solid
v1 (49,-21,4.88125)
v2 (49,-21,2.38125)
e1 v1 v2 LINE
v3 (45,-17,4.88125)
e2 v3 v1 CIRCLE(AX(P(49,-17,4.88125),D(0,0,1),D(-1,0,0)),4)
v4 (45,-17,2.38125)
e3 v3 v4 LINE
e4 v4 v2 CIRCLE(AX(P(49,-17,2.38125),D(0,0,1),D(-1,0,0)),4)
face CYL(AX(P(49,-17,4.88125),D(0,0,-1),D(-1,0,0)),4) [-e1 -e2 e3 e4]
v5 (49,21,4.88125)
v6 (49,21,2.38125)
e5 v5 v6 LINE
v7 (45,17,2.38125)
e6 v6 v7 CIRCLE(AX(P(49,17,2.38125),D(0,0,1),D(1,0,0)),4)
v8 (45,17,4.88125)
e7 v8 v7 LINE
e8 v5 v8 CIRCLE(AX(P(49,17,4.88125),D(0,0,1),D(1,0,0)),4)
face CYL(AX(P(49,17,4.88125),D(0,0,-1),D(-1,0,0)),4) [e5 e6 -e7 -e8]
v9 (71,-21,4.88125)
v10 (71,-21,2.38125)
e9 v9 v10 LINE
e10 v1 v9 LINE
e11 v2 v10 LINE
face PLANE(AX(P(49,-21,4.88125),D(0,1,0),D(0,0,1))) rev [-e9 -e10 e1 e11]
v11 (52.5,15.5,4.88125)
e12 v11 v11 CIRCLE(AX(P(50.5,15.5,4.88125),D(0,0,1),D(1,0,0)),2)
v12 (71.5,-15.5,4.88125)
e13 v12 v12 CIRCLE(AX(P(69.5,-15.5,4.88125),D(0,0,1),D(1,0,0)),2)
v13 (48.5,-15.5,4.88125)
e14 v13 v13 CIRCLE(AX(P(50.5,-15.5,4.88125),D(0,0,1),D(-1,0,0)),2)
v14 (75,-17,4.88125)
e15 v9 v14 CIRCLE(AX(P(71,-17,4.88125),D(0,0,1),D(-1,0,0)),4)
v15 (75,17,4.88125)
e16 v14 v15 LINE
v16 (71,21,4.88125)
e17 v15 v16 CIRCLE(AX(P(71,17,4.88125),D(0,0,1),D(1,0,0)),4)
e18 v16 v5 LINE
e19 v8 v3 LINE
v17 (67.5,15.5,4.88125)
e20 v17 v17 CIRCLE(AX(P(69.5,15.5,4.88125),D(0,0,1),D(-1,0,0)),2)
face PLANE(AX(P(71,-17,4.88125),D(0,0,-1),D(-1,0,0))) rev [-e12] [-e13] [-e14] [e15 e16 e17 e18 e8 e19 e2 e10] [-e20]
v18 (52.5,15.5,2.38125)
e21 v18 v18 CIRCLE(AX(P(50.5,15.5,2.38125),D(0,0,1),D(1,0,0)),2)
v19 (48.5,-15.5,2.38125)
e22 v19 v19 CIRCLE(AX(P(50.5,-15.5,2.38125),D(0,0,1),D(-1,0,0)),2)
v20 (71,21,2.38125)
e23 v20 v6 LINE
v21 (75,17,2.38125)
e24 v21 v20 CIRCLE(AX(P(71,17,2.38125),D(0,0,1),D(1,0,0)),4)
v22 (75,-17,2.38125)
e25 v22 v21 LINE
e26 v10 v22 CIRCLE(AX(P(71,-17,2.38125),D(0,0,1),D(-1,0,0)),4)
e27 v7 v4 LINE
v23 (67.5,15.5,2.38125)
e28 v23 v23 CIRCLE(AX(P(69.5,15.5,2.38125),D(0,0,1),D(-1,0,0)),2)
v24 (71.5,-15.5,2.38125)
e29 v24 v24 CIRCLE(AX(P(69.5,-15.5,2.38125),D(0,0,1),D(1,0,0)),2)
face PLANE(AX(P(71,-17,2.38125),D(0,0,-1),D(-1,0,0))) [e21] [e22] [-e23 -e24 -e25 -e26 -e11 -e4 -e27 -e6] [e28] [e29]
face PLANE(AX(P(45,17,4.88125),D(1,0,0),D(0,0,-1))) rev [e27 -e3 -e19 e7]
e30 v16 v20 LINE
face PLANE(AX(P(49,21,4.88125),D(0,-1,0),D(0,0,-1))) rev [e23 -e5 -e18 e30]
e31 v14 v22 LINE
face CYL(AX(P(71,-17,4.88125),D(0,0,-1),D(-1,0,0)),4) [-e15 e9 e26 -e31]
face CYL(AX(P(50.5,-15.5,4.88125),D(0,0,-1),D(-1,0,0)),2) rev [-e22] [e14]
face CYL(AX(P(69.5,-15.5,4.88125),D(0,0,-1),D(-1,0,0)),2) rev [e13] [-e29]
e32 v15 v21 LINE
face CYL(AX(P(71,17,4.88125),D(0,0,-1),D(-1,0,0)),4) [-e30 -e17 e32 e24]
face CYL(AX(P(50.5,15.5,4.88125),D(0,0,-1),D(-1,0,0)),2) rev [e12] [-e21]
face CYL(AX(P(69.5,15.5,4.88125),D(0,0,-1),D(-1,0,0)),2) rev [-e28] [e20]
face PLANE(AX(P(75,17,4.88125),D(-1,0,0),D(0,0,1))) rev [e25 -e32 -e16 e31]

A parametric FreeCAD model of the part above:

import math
import FreeCAD as App
import Part
import Sketcher

V = App.Vector


def edges_at(feature, points):
    """Names of the edges that pass closest to the given points."""
    edges = feature.Shape.Edges
    near = lambda p: min(range(len(edges)), key=lambda i: edges[i].distToShape(Part.Vertex(*p))[0])
    return sorted({f"Edge{near(p) + 1}" for p in points})

doc = App.newDocument("Part")
body = doc.addObject("PartDesign::Body", "Body")

sketch1 = doc.addObject("Sketcher::SketchObject", "Sketch")
body.addObject(sketch1)
sketch1.AttachmentSupport = (doc.XY_Plane, [""])
sketch1.MapMode = "FlatFace"
sketch1.addGeometry([
    Part.LineSegment(V(-21, 21, 0), V(-21, -21, 0)),
    Part.LineSegment(V(-21, -21, 0), V(117, -21, 0)),
    Part.LineSegment(V(117, -21, 0), V(117, 21, 0)),
    Part.LineSegment(V(117, 21, 0), V(-21, 21, 0)),
    Part.Circle(V(34, -15.5, 0), V(0, 0, 1), 2),
    Part.Circle(V(0, 0, 0), V(0, 0, 1), 3.5),
    Part.Circle(V(60, 0, 0), V(0, 0, 1), 8.5),
    Part.Circle(V(34, 15.5, 0), V(0, 0, 1), 2),
], False)
sketch1.addConstraint([
    Sketcher.Constraint("Coincident", 0, 2, 1, 1),
    Sketcher.Constraint("Coincident", 1, 2, 2, 1),
    Sketcher.Constraint("Coincident", 2, 2, 3, 1),
    Sketcher.Constraint("Coincident", 3, 2, 0, 1),
    Sketcher.Constraint("Vertical", 0),
    Sketcher.Constraint("Horizontal", 1),
    Sketcher.Constraint("Vertical", 2),
    Sketcher.Constraint("Horizontal", 3),
    Sketcher.Constraint("Coincident", 5, 3, -1, 1),
    Sketcher.Constraint("Equal", 4, 7),
    Sketcher.Constraint("Symmetric", 4, 3, 7, 3, -1),
    Sketcher.Constraint("PointOnObject", 6, 3, -1),
    Sketcher.Constraint("Diameter", 4, 4.0),
    Sketcher.Constraint("Diameter", 5, 7.0),
    Sketcher.Constraint("Diameter", 6, 17.0),
    Sketcher.Constraint("DistanceX", 1, 1, 1, 2, 138.0),
    Sketcher.Constraint("DistanceY", 0, 2, 0, 1, 42.0),
    Sketcher.Constraint("DistanceX", -1, 1, 4, 3, 34.0),
    Sketcher.Constraint("DistanceX", -1, 1, 6, 3, 60.0),
    Sketcher.Constraint("DistanceX", 0, 2, -1, 1, 21.0),
    Sketcher.Constraint("DistanceY", 0, 2, -1, 1, 21.0),
    Sketcher.Constraint("DistanceY", 4, 3, 7, 3, 31.0),
])
pad1 = doc.addObject("PartDesign::Pad", "Pad")
body.addObject(pad1)
pad1.Profile = sketch1
pad1.Length = 4.7625
pad1.Midplane = True

sketch2 = doc.addObject("Sketcher::SketchObject", "Sketch001")
body.addObject(sketch2)
sketch2.AttachmentSupport = (doc.XY_Plane, [""])
sketch2.MapMode = "FlatFace"
sketch2.AttachmentOffset = App.Placement(V(0, 0, -2.38125), App.Rotation())
sketch2.addGeometry([
    Part.Circle(V(34, -15.5, 0), V(0, 0, 1), 4),
    Part.Circle(V(34, 15.5, 0), V(0, 0, 1), 4),
    Part.Circle(V(34, 15.5, 0), V(0, 0, 1), 2),
    Part.Circle(V(15.5, 15.5, 0), V(0, 0, 1), 4),
    Part.Circle(V(-15.5, 15.5, 0), V(0, 0, 1), 4),
    Part.Circle(V(15.5, -15.5, 0), V(0, 0, 1), 4),
    Part.Circle(V(-15.5, -15.5, 0), V(0, 0, 1), 4),
], False)
sketch2.addConstraint([
    Sketcher.Constraint("Coincident", 2, 3, 1, 3),
    Sketcher.Constraint("Equal", 0, 1),
    Sketcher.Constraint("Equal", 1, 3),
    Sketcher.Constraint("Equal", 3, 4),
    Sketcher.Constraint("Equal", 4, 5),
    Sketcher.Constraint("Equal", 5, 6),
    Sketcher.Constraint("Symmetric", 4, 3, 5, 3, -1, 1),
    Sketcher.Constraint("Symmetric", 3, 3, 6, 3, -1, 1),
    Sketcher.Constraint("Symmetric", 3, 3, 4, 3, -2),
    Sketcher.Constraint("Symmetric", 0, 3, 1, 3, -1),
    Sketcher.Constraint("Horizontal", 2, 3, 3, 3),
    Sketcher.Constraint("Diameter", 0, 8.0),
    Sketcher.Constraint("Diameter", 2, 4.0),
    Sketcher.Constraint("DistanceX", -1, 1, 0, 3, 34.0),
    Sketcher.Constraint("DistanceY", 0, 3, 1, 3, 31.0),
    Sketcher.Constraint("DistanceX", 4, 3, 3, 3, 31.0),
])
pocket1 = doc.addObject("PartDesign::Pocket", "Pocket")
body.addObject(pocket1)
pocket1.Profile = sketch2
pocket1.Length = 4
pocket1.Reversed = True

sketch3 = doc.addObject("Sketcher::SketchObject", "Sketch002")
body.addObject(sketch3)
sketch3.AttachmentSupport = (doc.XY_Plane, [""])
sketch3.MapMode = "FlatFace"
sketch3.AttachmentOffset = App.Placement(V(0, 0, -2.38125), App.Rotation())
sketch3.addGeometry([
    Part.Circle(V(111.5, -15.5, 0), V(0, 0, 1), 3.2),
    Part.Circle(V(111.5, -15.5, 0), V(0, 0, 1), 2),
    Part.Circle(V(111.5, 15.5, 0), V(0, 0, 1), 3.2),
    Part.Circle(V(111.5, 15.5, 0), V(0, 0, 1), 2),
], False)
sketch3.addConstraint([
    Sketcher.Constraint("Coincident", 1, 3, 0, 3),
    Sketcher.Constraint("Coincident", 3, 3, 2, 3),
    Sketcher.Constraint("Equal", 0, 2),
    Sketcher.Constraint("Equal", 1, 3),
    Sketcher.Constraint("Symmetric", 0, 3, 2, 3, -1),
    Sketcher.Constraint("Diameter", 1, 4.0),
    Sketcher.Constraint("Diameter", 0, 6.35),
    Sketcher.Constraint("DistanceY", 0, 3, 2, 3, 31.0),
    Sketcher.Constraint("DistanceX", -1, 1, 0, 3, 111.5),
])
pad2 = doc.addObject("PartDesign::Pad", "Pad001")
body.addObject(pad2)
pad2.Profile = sketch3
pad2.Length = 17.9
pad2.Reversed = True

sketch4 = doc.addObject("Sketcher::SketchObject", "Sketch003")
body.addObject(sketch4)
sketch4.AttachmentSupport = (doc.XY_Plane, [""])
sketch4.MapMode = "FlatFace"
sketch4.AttachmentOffset = App.Placement(V(0, 0, -2.38125), App.Rotation())
sketch4.addGeometry([
    Part.Circle(V(15.5, 15.5, 0), V(0, 0, 1), 2),
    Part.Circle(V(-15.5, 15.5, 0), V(0, 0, 1), 2),
    Part.Circle(V(-15.5, -15.5, 0), V(0, 0, 1), 2),
    Part.Circle(V(15.5, -15.5, 0), V(0, 0, 1), 2),
], False)
sketch4.addConstraint([
    Sketcher.Constraint("Equal", 0, 1),
    Sketcher.Constraint("Equal", 1, 2),
    Sketcher.Constraint("Equal", 2, 3),
    Sketcher.Constraint("Symmetric", 0, 3, 2, 3, -1, 1),
    Sketcher.Constraint("Symmetric", 1, 3, 3, 3, -1, 1),
    Sketcher.Constraint("Symmetric", 0, 3, 1, 3, -2),
    Sketcher.Constraint("Diameter", 0, 4.0),
    Sketcher.Constraint("DistanceX", 1, 3, 0, 3, 31.0),
    Sketcher.Constraint("DistanceY", 2, 3, 1, 3, 31.0),
])
pocket2 = doc.addObject("PartDesign::Pocket", "Pocket001")
body.addObject(pocket2)
pocket2.Profile = sketch4
pocket2.Length = 10
pocket2.Reversed = True

sketch5 = doc.addObject("Sketcher::SketchObject", "Sketch004")
body.addObject(sketch5)
sketch5.AttachmentSupport = (doc.XY_Plane, [""])
sketch5.MapMode = "FlatFace"
sketch5.AttachmentOffset = App.Placement(V(0, 0, -2.38125), App.Rotation())
sketch5.addGeometry([
    Part.LineSegment(V(-21, -21, 0), V(-27.2, -0.9, 0)),
    Part.ArcOfCircle(Part.Circle(V(-24.2, 0, 0), V(0, 0, 1), 3.2), math.radians(163), math.radians(197)),
    Part.LineSegment(V(-27.2, 0.9, 0), V(-21, 21, 0)),
    Part.LineSegment(V(-21, 21, 0), V(-21, -21, 0)),
], False)
sketch5.addConstraint([
    Sketcher.Constraint("Tangent", 0, 2, 1, 2),
    Sketcher.Constraint("Tangent", 1, 1, 2, 1),
    Sketcher.Constraint("Coincident", 2, 2, 3, 1),
    Sketcher.Constraint("Coincident", 3, 2, 0, 1),
    Sketcher.Constraint("Vertical", 3),
    Sketcher.Constraint("Symmetric", 0, 2, 1, 1, -1),
    Sketcher.Constraint("DistanceY", 3, 2, 3, 1, 42.0),
    Sketcher.Constraint("Distance", 0, 21.0),
    Sketcher.Constraint("DistanceX", 2, 2, -1, 1, 21.0),
    Sketcher.Constraint("Radius", 1, 3.175),
])
pad3 = doc.addObject("PartDesign::Pad", "Pad002")
body.addObject(pad3)
pad3.Profile = sketch5
pad3.Length = 4.7625
doc.recompute()

datumplane = doc.addObject("PartDesign::Plane", "DatumPlane")
body.addObject(datumplane)
datumplane.AttachmentSupport = (doc.XY_Plane, [""])
datumplane.MapMode = "FlatFace"
datumplane.AttachmentOffset = App.Placement(V(0, 0, -11.33125), App.Rotation())
mirrored = doc.addObject("PartDesign::Mirrored", "Mirrored")
body.addObject(mirrored)
mirrored.Originals = [pad1, pad3]
mirrored.MirrorPlane = (datumplane, [""])
body.Tip = mirrored

sketch6 = doc.addObject("Sketcher::SketchObject", "Sketch005")
body.addObject(sketch6)
sketch6.AttachmentSupport = (doc.XY_Plane, [""])
sketch6.MapMode = "FlatFace"
sketch6.AttachmentOffset = App.Placement(V(0, 0, -20.28125), App.Rotation())
sketch6.addGeometry(Part.Circle(V(-24.2, 0, 0), V(0, 0, 1), 3.2), False)
sketch6.addConstraint([
    Sketcher.Constraint("PointOnObject", 0, 3, -1),
    Sketcher.Constraint("Diameter", 0, 6.35),
    Sketcher.Constraint("DistanceX", 0, 3, -1, 1, 24.175),
])
pad4 = doc.addObject("PartDesign::Pad", "Pad003")
body.addObject(pad4)
pad4.Profile = sketch6
pad4.Length = 17.9
doc.recompute()

fillet = doc.addObject("PartDesign::Fillet", "Fillet")
body.addObject(fillet)
fillet.Base = (pad4, edges_at(pad4, [
    (117, 21, -22.663),
    (117, -21, -22.663),
    (-21, -21, -22.663),
    (-21, 21, -22.663),
    (117, -21, 0),
    (-21, -21, 0),
    (-21, 21, 0),
    (117, 21, 0),
]))
fillet.Radius = 6.35

sketch7 = doc.addObject("Sketcher::SketchObject", "Sketch006")
body.addObject(sketch7)
sketch7.AttachmentSupport = (doc.XY_Plane, [""])
sketch7.MapMode = "FlatFace"
sketch7.AttachmentOffset = App.Placement(V(0, 0, 2.38125), App.Rotation())
sketch7.addGeometry([
    Part.ArcOfCircle(Part.Circle(V(0, 21, 0), V(0, 0, 1), 3.2), math.radians(0), math.radians(180)),
    Part.LineSegment(V(3.2, 21, 0), V(-3.2, 21, 0)),
    Part.LineSegment(V(-3.2, -21, 0), V(3.2, -21, 0)),
    Part.ArcOfCircle(Part.Circle(V(0, -21, 0), V(0, 0, 1), 3.2), math.radians(180), math.radians(360)),
], False)
sketch7.addConstraint([
    Sketcher.Constraint("Coincident", 0, 1, 1, 1),
    Sketcher.Constraint("Coincident", 1, 2, 0, 2),
    Sketcher.Constraint("Coincident", 2, 1, 3, 1),
    Sketcher.Constraint("Coincident", 3, 2, 2, 2),
    Sketcher.Constraint("Horizontal", 1),
    Sketcher.Constraint("Horizontal", 2),
    Sketcher.Constraint("Equal", 0, 3),
    Sketcher.Constraint("Symmetric", 0, 3, 3, 3, -1, 1),
    Sketcher.Constraint("Symmetric", 1, 2, 2, 1, -1),
    Sketcher.Constraint("Horizontal", 3, 3, 2, 1),
    Sketcher.Constraint("DistanceY", -1, 1, 0, 3, 21.0),
    Sketcher.Constraint("Radius", 0, 3.175),
])
pad5 = doc.addObject("PartDesign::Pad", "Pad004")
body.addObject(pad5)
pad5.Profile = sketch7
pad5.Length = 27.425
pad5.Reversed = True

sketch8 = doc.addObject("Sketcher::SketchObject", "Sketch007")
body.addObject(sketch8)
sketch8.AttachmentSupport = (doc.XY_Plane, [""])
sketch8.MapMode = "FlatFace"
sketch8.AttachmentOffset = App.Placement(V(0, 0, -24.28125), App.Rotation())
sketch8.addGeometry([
    Part.Circle(V(34, -15.5, 0), V(0, 0, 1), 4),
    Part.Circle(V(34, 15.5, 0), V(0, 0, 1), 4),
], False)
sketch8.addConstraint([
    Sketcher.Constraint("Equal", 0, 1),
    Sketcher.Constraint("Symmetric", 0, 3, 1, 3, -1),
    Sketcher.Constraint("Diameter", 0, 8.0),
    Sketcher.Constraint("DistanceX", -1, 1, 0, 3, 34.0),
    Sketcher.Constraint("DistanceY", 0, 3, 1, 3, 31.0),
])
pocket3 = doc.addObject("PartDesign::Pocket", "Pocket002")
body.addObject(pocket3)
pocket3.Profile = sketch8
pocket3.Length = 4
pocket3.Reversed = True

sketch9 = doc.addObject("Sketcher::SketchObject", "Sketch008")
body.addObject(sketch9)
sketch9.AttachmentSupport = (doc.XY_Plane, [""])
sketch9.MapMode = "FlatFace"
sketch9.AttachmentOffset = App.Placement(V(0, 0, 2.38125), App.Rotation())
sketch9.addGeometry(Part.Circle(V(0, 0, 0), V(0, 0, 1), 11), False)
sketch9.addConstraint([
    Sketcher.Constraint("Coincident", 0, 3, -1, 1),
    Sketcher.Constraint("Diameter", 0, 22.0091),
])
pocket4 = doc.addObject("PartDesign::Pocket", "Pocket003")
body.addObject(pocket4)
pocket4.Profile = sketch9
pocket4.Length = 2.5

sketch10 = doc.addObject("Sketcher::SketchObject", "Sketch009")
body.addObject(sketch10)
sketch10.AttachmentSupport = (doc.XY_Plane, [""])
sketch10.MapMode = "FlatFace"
sketch10.AttachmentOffset = App.Placement(V(0, 0, 2.38125), App.Rotation())
sketch10.addGeometry([
    Part.Circle(V(50.5, 15.5, 0), V(0, 0, 1), 1.6),
    Part.Circle(V(69.5, 15.5, 0), V(0, 0, 1), 1.6),
    Part.Circle(V(69.5, -15.5, 0), V(0, 0, 1), 1.6),
    Part.Circle(V(50.5, -15.5, 0), V(0, 0, 1), 1.6),
], False)
sketch10.addConstraint([
    Sketcher.Constraint("Equal", 0, 1),
    Sketcher.Constraint("Equal", 1, 2),
    Sketcher.Constraint("Equal", 2, 3),
    Sketcher.Constraint("Symmetric", 1, 3, 2, 3, -1),
    Sketcher.Constraint("Symmetric", 0, 3, 3, 3, -1),
    Sketcher.Constraint("Horizontal", 0, 3, 1, 3),
    Sketcher.Constraint("Diameter", 0, 3.3),
    Sketcher.Constraint("DistanceX", 0, 3, 1, 3, 19.0),
    Sketcher.Constraint("DistanceY", 2, 3, 1, 3, 31.0),
    Sketcher.Constraint("DistanceX", -1, 1, 0, 3, 50.5),
])
pocket5 = doc.addObject("PartDesign::Pocket", "Pocket004")
body.addObject(pocket5)
pocket5.Profile = sketch10
pocket5.Type = "ThroughAll"
pocket5.Midplane = True
body2 = doc.addObject("PartDesign::Body", "Body001")

sketch11 = doc.addObject("Sketcher::SketchObject", "Sketch010")
body2.addObject(sketch11)
sketch11.AttachmentSupport = (doc.getObject("XY_Plane001"), [""])
sketch11.MapMode = "FlatFace"
sketch11.AttachmentOffset = App.Placement(V(0, 0, 2.38125), App.Rotation())
sketch11.addGeometry([
    Part.LineSegment(V(71, 21, 0), V(49, 21, 0)),
    Part.ArcOfCircle(Part.Circle(V(49, 17, 0), V(0, 0, 1), 4), math.radians(90), math.radians(180)),
    Part.LineSegment(V(45, 17, 0), V(45, -17, 0)),
    Part.ArcOfCircle(Part.Circle(V(49, -17, 0), V(0, 0, 1), 4), math.radians(180), math.radians(270)),
    Part.LineSegment(V(49, -21, 0), V(71, -21, 0)),
    Part.ArcOfCircle(Part.Circle(V(71, -17, 0), V(0, 0, 1), 4), math.radians(-90), math.radians(0)),
    Part.LineSegment(V(75, -17, 0), V(75, 17, 0)),
    Part.ArcOfCircle(Part.Circle(V(71, 17, 0), V(0, 0, 1), 4), math.radians(0), math.radians(90)),
    Part.Circle(V(69.5, -15.5, 0), V(0, 0, 1), 2),
    Part.Circle(V(50.5, -15.5, 0), V(0, 0, 1), 2),
    Part.Circle(V(69.5, 15.5, 0), V(0, 0, 1), 2),
    Part.Circle(V(50.5, 15.5, 0), V(0, 0, 1), 2),
], False)
sketch11.addConstraint([
    Sketcher.Constraint("Tangent", 0, 2, 1, 1),
    Sketcher.Constraint("Tangent", 1, 2, 2, 1),
    Sketcher.Constraint("Tangent", 2, 2, 3, 1),
    Sketcher.Constraint("Tangent", 3, 2, 4, 1),
    Sketcher.Constraint("Tangent", 4, 2, 5, 1),
    Sketcher.Constraint("Tangent", 5, 2, 6, 1),
    Sketcher.Constraint("Tangent", 6, 2, 7, 1),
    Sketcher.Constraint("Tangent", 7, 2, 0, 1),
    Sketcher.Constraint("Horizontal", 0),
    Sketcher.Constraint("Vertical", 2),
    Sketcher.Constraint("Horizontal", 4),
    Sketcher.Constraint("Vertical", 6),
    Sketcher.Constraint("Equal", 1, 3),
    Sketcher.Constraint("Equal", 3, 5),
    Sketcher.Constraint("Equal", 5, 7),
    Sketcher.Constraint("Equal", 8, 9),
    Sketcher.Constraint("Equal", 9, 10),
    Sketcher.Constraint("Equal", 10, 11),
    Sketcher.Constraint("Symmetric", 8, 3, 10, 3, -1),
    Sketcher.Constraint("Symmetric", 9, 3, 11, 3, -1),
    Sketcher.Constraint("Horizontal", 8, 3, 9, 3),
    Sketcher.Constraint("Diameter", 8, 4.0),
    Sketcher.Constraint("Radius", 1, 4.0),
    Sketcher.Constraint("DistanceX", 0, 2, 0, 1, 22.0),
    Sketcher.Constraint("DistanceY", 2, 2, 2, 1, 34.0),
    Sketcher.Constraint("DistanceX", -1, 1, 1, 3, 49.0),
    Sketcher.Constraint("DistanceY", -1, 1, 1, 3, 17.0),
    Sketcher.Constraint("DistanceX", 9, 3, 8, 3, 19.0),
    Sketcher.Constraint("DistanceY", 8, 3, 10, 3, 31.0),
    Sketcher.Constraint("DistanceX", -1, 1, 8, 3, 69.5),
])
pad6 = doc.addObject("PartDesign::Pad", "Pad005")
body2.addObject(pad6)
pad6.Profile = sketch11
pad6.Length = 2.5
body.Visibility = False

doc.recompute()
